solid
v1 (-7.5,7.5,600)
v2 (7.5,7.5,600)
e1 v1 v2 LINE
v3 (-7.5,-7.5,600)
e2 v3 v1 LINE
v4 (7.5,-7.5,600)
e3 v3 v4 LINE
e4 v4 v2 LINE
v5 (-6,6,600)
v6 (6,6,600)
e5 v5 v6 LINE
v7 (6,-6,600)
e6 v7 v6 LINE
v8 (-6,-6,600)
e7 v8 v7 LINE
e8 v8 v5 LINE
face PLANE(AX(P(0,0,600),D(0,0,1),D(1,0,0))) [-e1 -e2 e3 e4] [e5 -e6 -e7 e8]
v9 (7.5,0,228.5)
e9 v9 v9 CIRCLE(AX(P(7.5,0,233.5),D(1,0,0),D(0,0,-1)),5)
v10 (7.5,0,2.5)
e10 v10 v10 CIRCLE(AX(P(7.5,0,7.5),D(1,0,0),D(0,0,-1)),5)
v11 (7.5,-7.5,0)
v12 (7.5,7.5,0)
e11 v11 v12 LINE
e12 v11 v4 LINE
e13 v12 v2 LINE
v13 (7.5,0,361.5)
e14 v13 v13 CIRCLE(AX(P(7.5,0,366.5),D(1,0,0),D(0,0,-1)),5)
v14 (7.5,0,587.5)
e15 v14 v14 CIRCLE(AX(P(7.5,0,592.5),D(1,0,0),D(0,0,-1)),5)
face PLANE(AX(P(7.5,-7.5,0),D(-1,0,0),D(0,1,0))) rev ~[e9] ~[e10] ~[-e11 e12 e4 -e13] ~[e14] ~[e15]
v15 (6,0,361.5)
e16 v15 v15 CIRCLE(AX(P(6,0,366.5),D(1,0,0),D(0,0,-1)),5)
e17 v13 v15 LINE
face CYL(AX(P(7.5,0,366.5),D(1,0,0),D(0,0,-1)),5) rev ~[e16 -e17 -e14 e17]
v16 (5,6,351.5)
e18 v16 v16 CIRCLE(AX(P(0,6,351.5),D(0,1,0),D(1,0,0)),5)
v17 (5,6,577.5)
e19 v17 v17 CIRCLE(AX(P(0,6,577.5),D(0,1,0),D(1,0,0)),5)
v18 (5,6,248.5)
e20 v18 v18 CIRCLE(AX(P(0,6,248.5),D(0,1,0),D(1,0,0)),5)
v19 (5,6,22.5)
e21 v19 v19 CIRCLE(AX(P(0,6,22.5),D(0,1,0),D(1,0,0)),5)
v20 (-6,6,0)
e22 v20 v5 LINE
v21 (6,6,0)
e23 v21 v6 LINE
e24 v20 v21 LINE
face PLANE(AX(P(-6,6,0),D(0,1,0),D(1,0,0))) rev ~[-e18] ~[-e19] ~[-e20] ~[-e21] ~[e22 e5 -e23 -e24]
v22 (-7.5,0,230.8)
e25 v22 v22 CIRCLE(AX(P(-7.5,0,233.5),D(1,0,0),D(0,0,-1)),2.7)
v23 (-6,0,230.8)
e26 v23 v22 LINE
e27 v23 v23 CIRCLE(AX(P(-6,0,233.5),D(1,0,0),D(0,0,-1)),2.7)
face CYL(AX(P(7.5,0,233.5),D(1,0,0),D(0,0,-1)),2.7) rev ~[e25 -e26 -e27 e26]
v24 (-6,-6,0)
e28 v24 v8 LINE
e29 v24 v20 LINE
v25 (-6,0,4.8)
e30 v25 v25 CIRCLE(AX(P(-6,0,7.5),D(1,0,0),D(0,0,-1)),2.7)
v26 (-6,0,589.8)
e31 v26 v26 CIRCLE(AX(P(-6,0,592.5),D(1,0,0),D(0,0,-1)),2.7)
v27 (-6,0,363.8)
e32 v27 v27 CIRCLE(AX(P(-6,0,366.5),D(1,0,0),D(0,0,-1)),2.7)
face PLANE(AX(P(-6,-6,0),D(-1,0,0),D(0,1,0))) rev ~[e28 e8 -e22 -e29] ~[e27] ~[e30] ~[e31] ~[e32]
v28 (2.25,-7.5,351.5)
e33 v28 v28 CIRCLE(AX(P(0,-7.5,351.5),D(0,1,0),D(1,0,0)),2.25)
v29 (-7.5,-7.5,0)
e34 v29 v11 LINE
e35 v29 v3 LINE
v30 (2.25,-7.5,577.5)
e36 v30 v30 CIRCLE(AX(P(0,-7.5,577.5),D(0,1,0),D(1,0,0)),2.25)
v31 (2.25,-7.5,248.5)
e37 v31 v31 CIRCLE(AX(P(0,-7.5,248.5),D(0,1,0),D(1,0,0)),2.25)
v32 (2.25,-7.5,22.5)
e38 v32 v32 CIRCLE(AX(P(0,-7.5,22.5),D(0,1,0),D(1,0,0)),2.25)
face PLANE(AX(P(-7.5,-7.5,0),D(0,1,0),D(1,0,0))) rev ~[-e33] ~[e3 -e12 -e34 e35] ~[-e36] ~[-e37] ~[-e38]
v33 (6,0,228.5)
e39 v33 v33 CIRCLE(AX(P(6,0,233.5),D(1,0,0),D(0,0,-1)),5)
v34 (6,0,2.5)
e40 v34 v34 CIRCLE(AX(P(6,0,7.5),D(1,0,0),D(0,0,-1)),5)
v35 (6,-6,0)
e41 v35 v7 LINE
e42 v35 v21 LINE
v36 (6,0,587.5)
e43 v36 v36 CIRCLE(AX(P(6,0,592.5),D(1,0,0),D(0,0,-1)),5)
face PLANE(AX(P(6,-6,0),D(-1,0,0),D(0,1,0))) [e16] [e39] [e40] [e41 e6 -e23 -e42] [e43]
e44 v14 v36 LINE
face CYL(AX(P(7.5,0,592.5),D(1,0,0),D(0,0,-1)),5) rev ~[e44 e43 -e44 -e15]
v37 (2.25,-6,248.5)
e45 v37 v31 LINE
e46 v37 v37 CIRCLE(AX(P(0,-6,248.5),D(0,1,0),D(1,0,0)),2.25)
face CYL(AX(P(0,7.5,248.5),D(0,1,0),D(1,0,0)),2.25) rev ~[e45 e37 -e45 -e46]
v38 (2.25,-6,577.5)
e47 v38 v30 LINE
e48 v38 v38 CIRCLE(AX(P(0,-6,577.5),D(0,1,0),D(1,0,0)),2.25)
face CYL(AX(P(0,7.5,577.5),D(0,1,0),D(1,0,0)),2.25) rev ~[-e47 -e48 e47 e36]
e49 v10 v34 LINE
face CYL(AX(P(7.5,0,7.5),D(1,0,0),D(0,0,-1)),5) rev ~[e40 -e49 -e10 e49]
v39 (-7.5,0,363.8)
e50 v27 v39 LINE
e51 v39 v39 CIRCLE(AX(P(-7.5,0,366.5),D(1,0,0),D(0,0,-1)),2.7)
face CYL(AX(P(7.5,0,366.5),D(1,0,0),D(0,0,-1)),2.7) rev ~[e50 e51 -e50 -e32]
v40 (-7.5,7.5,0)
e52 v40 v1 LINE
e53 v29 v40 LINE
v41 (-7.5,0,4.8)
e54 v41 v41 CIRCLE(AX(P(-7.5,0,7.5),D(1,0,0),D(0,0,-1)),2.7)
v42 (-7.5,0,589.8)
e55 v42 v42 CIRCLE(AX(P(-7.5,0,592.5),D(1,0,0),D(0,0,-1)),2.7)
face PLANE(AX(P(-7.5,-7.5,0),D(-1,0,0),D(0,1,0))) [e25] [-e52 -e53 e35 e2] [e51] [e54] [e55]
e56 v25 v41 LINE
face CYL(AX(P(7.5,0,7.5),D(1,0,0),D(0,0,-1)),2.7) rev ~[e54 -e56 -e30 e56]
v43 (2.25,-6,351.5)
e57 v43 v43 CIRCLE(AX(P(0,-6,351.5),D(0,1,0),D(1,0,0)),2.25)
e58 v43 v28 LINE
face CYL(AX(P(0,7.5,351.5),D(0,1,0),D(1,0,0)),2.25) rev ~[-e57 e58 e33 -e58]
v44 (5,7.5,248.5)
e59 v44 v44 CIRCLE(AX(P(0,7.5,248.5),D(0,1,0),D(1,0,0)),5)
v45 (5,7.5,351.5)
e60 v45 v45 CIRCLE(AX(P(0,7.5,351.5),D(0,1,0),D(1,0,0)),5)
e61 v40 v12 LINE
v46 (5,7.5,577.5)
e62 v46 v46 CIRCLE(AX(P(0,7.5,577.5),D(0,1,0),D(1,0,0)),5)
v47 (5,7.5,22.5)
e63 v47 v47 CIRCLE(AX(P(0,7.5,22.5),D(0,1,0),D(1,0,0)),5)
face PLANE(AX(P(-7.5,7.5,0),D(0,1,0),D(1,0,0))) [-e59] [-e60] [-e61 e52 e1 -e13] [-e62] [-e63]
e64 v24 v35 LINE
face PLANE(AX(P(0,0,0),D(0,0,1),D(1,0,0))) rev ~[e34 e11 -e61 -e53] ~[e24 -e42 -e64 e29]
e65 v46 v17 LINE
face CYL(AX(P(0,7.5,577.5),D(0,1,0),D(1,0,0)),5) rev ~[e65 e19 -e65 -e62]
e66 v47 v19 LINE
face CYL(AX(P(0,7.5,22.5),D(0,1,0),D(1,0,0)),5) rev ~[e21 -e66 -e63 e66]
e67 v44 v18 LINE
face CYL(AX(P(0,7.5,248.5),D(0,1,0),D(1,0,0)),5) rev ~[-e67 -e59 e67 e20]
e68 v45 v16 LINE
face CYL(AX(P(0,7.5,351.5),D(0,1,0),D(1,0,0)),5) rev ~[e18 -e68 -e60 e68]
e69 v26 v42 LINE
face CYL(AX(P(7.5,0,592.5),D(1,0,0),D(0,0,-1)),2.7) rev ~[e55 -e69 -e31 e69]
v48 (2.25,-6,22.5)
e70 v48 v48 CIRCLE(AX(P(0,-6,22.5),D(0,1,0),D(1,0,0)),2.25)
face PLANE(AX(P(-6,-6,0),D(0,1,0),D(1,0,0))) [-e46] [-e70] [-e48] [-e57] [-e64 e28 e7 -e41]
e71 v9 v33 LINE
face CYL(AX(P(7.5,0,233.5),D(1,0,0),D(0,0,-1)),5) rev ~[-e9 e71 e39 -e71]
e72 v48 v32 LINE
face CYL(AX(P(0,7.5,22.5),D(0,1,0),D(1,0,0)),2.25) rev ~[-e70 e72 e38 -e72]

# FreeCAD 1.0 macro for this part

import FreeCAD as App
import Part
import Sketcher

V = App.Vector
Q = App.Units.Quantity


def add_polygon(sketch, points):
    """Adds a closed chain of lines whose ends are joined by coincident constraints."""
    first, n = sketch.GeometryCount, len(points)
    for a, b in zip(points, points[1:] + points[:1]):
        sketch.addGeometry(Part.LineSegment(App.Vector(*a, 0), App.Vector(*b, 0)), False)
    for i in range(n):
        sketch.addConstraint(Sketcher.Constraint("Coincident", first + i, 2, first + (i + 1) % n, 1))

doc = App.newDocument("Part")
body = doc.addObject("PartDesign::Body", "Body")

sketch1 = body.newObject("Sketcher::SketchObject", "Sketch")
sketch1.AttachmentSupport = (doc.getObject("XY_Plane"), [""])
sketch1.MapMode = "FlatFace"
add_polygon(sketch1, [(-7.5, 7.5), (-7.5, -7.5), (7.5, -7.5), (7.5, 7.5)])
add_polygon(sketch1, [(6, -6), (-6, -6), (-6, 6), (6, 6)])
sketch1.addConstraint(Sketcher.Constraint("Vertical", 0))
sketch1.addConstraint(Sketcher.Constraint("Horizontal", 1))
sketch1.addConstraint(Sketcher.Constraint("Vertical", 2))
sketch1.addConstraint(Sketcher.Constraint("Horizontal", 3))
sketch1.addConstraint(Sketcher.Constraint("Horizontal", 4))
sketch1.addConstraint(Sketcher.Constraint("Vertical", 5))
sketch1.addConstraint(Sketcher.Constraint("Horizontal", 6))
sketch1.addConstraint(Sketcher.Constraint("Vertical", 7))
sketch1.addConstraint(Sketcher.Constraint("Symmetric", 0, 2, 2, 2, -1, 1))
sketch1.addConstraint(Sketcher.Constraint("Symmetric", 4, 2, 6, 2, -1, 1))
sketch1.addConstraint(Sketcher.Constraint("Equal", 3, 0))
sketch1.addConstraint(Sketcher.Constraint("Equal", 6, 5))
sketch1.addConstraint(Sketcher.Constraint("DistanceX", 1, 1, 1, 2, Q("15 mm")))
sketch1.addConstraint(Sketcher.Constraint("DistanceX", 4, 2, 4, 1, Q("12 mm")))
pad1 = body.newObject("PartDesign::Pad", "Pad")
pad1.Profile = sketch1
pad1.Length = 600

sketch2 = body.newObject("Sketcher::SketchObject", "Sketch001")
sketch2.AttachmentSupport = (doc.getObject("YZ_Plane"), [""])
sketch2.MapMode = "FlatFace"
sketch2.AttachmentOffset = App.Placement(V(0, 0, 7.5), App.Rotation())
sketch2.addGeometry(Part.Circle(V(0, 592.5, 0), V(0, 0, 1), 2.7), False)
sketch2.addGeometry(Part.Circle(V(0, 7.5, 0), V(0, 0, 1), 2.7), False)
sketch2.addGeometry(Part.Circle(V(0, 366.5, 0), V(0, 0, 1), 2.7), False)
sketch2.addGeometry(Part.Circle(V(0, 233.5, 0), V(0, 0, 1), 2.7), False)
sketch2.addConstraint(Sketcher.Constraint("Equal", 0, 1))
sketch2.addConstraint(Sketcher.Constraint("Equal", 1, 2))
sketch2.addConstraint(Sketcher.Constraint("Equal", 2, 3))
sketch2.addConstraint(Sketcher.Constraint("PointOnObject", 0, 3, -2))
sketch2.addConstraint(Sketcher.Constraint("PointOnObject", 1, 3, -2))
sketch2.addConstraint(Sketcher.Constraint("PointOnObject", 2, 3, -2))
sketch2.addConstraint(Sketcher.Constraint("PointOnObject", 3, 3, -2))
sketch2.addConstraint(Sketcher.Constraint("Diameter", 0, Q("5.4 mm")))
sketch2.addConstraint(Sketcher.Constraint("DistanceY", 1, 3, 0, 3, Q("585 mm")))
sketch2.addConstraint(Sketcher.Constraint("DistanceY", 2, 3, 0, 3, Q("226 mm")))
sketch2.addConstraint(Sketcher.Constraint("DistanceY", 3, 3, 2, 3, Q("133 mm")))
sketch2.addConstraint(Sketcher.Constraint("DistanceY", -1, 1, 0, 3, Q("592.5 mm")))
pocket1 = body.newObject("PartDesign::Pocket", "Pocket")
pocket1.Profile = sketch2
pocket1.Length = 25

sketch3 = body.newObject("Sketcher::SketchObject", "Sketch002")
sketch3.AttachmentSupport = (doc.getObject("XZ_Plane"), [""])
sketch3.MapMode = "FlatFace"
sketch3.AttachmentOffset = App.Placement(V(0, 0, -7.5), App.Rotation())
sketch3.addGeometry(Part.Circle(V(0, 22.5, 0), V(0, 0, 1), 2.25), False)
sketch3.addGeometry(Part.Circle(V(0, 577.5, 0), V(0, 0, 1), 2.25), False)
sketch3.addGeometry(Part.Circle(V(0, 351.5, 0), V(0, 0, 1), 2.25), False)
sketch3.addGeometry(Part.Circle(V(0, 248.5, 0), V(0, 0, 1), 2.25), False)
sketch3.addConstraint(Sketcher.Constraint("Equal", 0, 1))
sketch3.addConstraint(Sketcher.Constraint("Equal", 1, 2))
sketch3.addConstraint(Sketcher.Constraint("Equal", 2, 3))
sketch3.addConstraint(Sketcher.Constraint("PointOnObject", 0, 3, -2))
sketch3.addConstraint(Sketcher.Constraint("PointOnObject", 1, 3, -2))
sketch3.addConstraint(Sketcher.Constraint("PointOnObject", 2, 3, -2))
sketch3.addConstraint(Sketcher.Constraint("PointOnObject", 3, 3, -2))
sketch3.addConstraint(Sketcher.Constraint("Diameter", 0, Q("4.5 mm")))
sketch3.addConstraint(Sketcher.Constraint("DistanceY", 0, 3, 1, 3, Q("555 mm")))
sketch3.addConstraint(Sketcher.Constraint("DistanceY", 2, 3, 1, 3, Q("226 mm")))
sketch3.addConstraint(Sketcher.Constraint("DistanceY", 3, 3, 2, 3, Q("103 mm")))
sketch3.addConstraint(Sketcher.Constraint("DistanceY", -1, 1, 0, 3, Q("22.5 mm")))
pocket2 = body.newObject("PartDesign::Pocket", "Pocket001")
pocket2.Profile = sketch3
pocket2.Length = 25
pocket2.Reversed = True

sketch4 = body.newObject("Sketcher::SketchObject", "Sketch003")
sketch4.AttachmentSupport = (doc.getObject("XZ_Plane"), [""])
sketch4.MapMode = "FlatFace"
sketch4.AttachmentOffset = App.Placement(V(0, 0, -7.5), App.Rotation())
sketch4.addGeometry(Part.Circle(V(0, 577.5, 0), V(0, 0, 1), 5), False)
sketch4.addGeometry(Part.Circle(V(0, 351.5, 0), V(0, 0, 1), 5), False)
sketch4.addGeometry(Part.Circle(V(0, 248.5, 0), V(0, 0, 1), 5), False)
sketch4.addGeometry(Part.Circle(V(0, 22.5, 0), V(0, 0, 1), 5), False)
sketch4.addConstraint(Sketcher.Constraint("Equal", 0, 1))
sketch4.addConstraint(Sketcher.Constraint("Equal", 1, 2))
sketch4.addConstraint(Sketcher.Constraint("Equal", 2, 3))
sketch4.addConstraint(Sketcher.Constraint("PointOnObject", 0, 3, -2))
sketch4.addConstraint(Sketcher.Constraint("PointOnObject", 1, 3, -2))
sketch4.addConstraint(Sketcher.Constraint("PointOnObject", 2, 3, -2))
sketch4.addConstraint(Sketcher.Constraint("PointOnObject", 3, 3, -2))
sketch4.addConstraint(Sketcher.Constraint("Diameter", 0, Q("10 mm")))
sketch4.addConstraint(Sketcher.Constraint("DistanceY", 1, 3, 0, 3, Q("226 mm")))
sketch4.addConstraint(Sketcher.Constraint("DistanceY", 2, 3, 1, 3, Q("103 mm")))
sketch4.addConstraint(Sketcher.Constraint("DistanceY", 3, 3, 2, 3, Q("226 mm")))
sketch4.addConstraint(Sketcher.Constraint("DistanceY", -1, 1, 0, 3, Q("577.5 mm")))
pocket3 = body.newObject("PartDesign::Pocket", "Pocket002")
pocket3.Profile = sketch4
pocket3.Length = 10
pocket3.Reversed = True

sketch5 = body.newObject("Sketcher::SketchObject", "Sketch004")
sketch5.AttachmentSupport = (doc.getObject("YZ_Plane"), [""])
sketch5.MapMode = "FlatFace"
sketch5.AttachmentOffset = App.Placement(V(0, 0, 7.5), App.Rotation())
sketch5.addGeometry(Part.Circle(V(0, 592.5, 0), V(0, 0, 1), 5), False)
sketch5.addGeometry(Part.Circle(V(0, 366.5, 0), V(0, 0, 1), 5), False)
sketch5.addGeometry(Part.Circle(V(0, 233.5, 0), V(0, 0, 1), 5), False)
sketch5.addGeometry(Part.Circle(V(0, 7.5, 0), V(0, 0, 1), 5), False)
sketch5.addConstraint(Sketcher.Constraint("Equal", 0, 1))
sketch5.addConstraint(Sketcher.Constraint("Equal", 1, 2))
sketch5.addConstraint(Sketcher.Constraint("Equal", 2, 3))
sketch5.addConstraint(Sketcher.Constraint("PointOnObject", 0, 3, -2))
sketch5.addConstraint(Sketcher.Constraint("PointOnObject", 1, 3, -2))
sketch5.addConstraint(Sketcher.Constraint("PointOnObject", 2, 3, -2))
sketch5.addConstraint(Sketcher.Constraint("PointOnObject", 3, 3, -2))
sketch5.addConstraint(Sketcher.Constraint("Diameter", 0, Q("10 mm")))
sketch5.addConstraint(Sketcher.Constraint("DistanceY", 1, 3, 0, 3, Q("226 mm")))
sketch5.addConstraint(Sketcher.Constraint("DistanceY", 2, 3, 1, 3, Q("133 mm")))
sketch5.addConstraint(Sketcher.Constraint("DistanceY", 3, 3, 2, 3, Q("226 mm")))
sketch5.addConstraint(Sketcher.Constraint("DistanceY", -1, 1, 0, 3, Q("592.5 mm")))
pocket4 = body.newObject("PartDesign::Pocket", "Pocket003")
pocket4.Profile = sketch5
pocket4.Length = 10

doc.recompute()
